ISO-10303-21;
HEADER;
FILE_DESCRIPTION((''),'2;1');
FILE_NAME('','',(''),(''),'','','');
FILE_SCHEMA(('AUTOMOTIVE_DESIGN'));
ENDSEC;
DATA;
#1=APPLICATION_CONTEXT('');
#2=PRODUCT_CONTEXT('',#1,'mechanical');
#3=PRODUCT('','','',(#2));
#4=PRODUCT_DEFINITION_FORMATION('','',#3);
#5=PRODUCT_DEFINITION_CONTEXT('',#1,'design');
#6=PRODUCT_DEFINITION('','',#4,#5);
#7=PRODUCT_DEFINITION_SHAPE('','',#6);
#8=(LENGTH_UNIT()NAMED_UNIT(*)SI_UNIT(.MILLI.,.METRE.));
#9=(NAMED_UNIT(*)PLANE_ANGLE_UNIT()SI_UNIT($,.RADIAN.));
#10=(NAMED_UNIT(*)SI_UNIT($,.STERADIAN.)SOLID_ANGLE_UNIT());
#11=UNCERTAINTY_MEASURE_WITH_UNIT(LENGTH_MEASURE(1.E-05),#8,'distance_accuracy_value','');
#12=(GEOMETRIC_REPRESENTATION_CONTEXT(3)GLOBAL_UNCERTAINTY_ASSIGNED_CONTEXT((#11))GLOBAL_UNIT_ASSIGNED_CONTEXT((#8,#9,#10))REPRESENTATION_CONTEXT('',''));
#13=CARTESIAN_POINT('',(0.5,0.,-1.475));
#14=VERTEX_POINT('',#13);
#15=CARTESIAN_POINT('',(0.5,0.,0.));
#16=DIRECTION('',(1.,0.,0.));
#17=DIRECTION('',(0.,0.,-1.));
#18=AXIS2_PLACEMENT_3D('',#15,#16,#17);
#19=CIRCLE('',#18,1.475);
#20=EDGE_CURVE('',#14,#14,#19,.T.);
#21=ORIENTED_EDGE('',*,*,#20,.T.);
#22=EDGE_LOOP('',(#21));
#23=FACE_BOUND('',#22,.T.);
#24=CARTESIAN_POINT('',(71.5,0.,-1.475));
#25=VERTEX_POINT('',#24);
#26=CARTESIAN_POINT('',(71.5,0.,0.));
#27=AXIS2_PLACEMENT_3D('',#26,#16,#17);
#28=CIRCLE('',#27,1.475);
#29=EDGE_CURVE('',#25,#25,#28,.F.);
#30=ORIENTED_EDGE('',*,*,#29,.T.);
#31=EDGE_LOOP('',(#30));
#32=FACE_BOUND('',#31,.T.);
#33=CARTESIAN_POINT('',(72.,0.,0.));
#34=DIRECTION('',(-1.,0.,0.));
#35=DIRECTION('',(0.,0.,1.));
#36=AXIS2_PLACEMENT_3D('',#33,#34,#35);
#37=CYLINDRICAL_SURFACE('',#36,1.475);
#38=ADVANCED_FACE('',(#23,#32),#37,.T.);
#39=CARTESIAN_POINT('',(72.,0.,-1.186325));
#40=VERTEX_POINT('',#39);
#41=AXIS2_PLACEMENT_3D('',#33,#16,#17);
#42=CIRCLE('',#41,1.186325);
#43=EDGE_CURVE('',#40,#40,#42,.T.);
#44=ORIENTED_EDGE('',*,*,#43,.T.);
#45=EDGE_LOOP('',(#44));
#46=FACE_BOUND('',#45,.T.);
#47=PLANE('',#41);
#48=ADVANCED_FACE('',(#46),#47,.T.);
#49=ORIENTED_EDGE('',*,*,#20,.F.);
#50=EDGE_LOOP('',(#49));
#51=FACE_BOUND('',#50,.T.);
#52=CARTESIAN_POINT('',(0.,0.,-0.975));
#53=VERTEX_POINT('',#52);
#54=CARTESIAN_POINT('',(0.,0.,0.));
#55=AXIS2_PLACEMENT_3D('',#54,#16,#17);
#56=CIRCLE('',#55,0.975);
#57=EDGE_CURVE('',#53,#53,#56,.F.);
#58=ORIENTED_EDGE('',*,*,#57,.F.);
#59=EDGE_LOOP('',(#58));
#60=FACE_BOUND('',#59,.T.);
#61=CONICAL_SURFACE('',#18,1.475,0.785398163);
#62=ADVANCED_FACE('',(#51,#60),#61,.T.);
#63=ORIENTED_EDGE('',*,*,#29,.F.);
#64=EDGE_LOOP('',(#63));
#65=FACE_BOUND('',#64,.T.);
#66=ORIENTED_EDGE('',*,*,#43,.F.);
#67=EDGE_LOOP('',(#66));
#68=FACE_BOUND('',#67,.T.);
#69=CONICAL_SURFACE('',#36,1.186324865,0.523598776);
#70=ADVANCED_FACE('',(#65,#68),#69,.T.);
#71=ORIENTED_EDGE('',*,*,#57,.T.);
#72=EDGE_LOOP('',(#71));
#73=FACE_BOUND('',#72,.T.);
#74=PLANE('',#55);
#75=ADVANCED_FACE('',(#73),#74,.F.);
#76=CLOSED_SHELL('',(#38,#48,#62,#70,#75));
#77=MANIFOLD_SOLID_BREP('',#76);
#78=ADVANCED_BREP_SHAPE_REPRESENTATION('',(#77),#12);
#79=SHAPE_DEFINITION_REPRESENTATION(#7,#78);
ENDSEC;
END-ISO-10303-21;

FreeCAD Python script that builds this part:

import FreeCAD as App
import Part
import Sketcher
from FreeCAD import Vector
Q = App.Units.Quantity


def edges_at(feature, points):
    """Names of the edges that pass closest to the given points."""
    edges = feature.Shape.Edges
    near = lambda p: min(range(len(edges)), key=lambda i: edges[i].distToShape(Part.Vertex(*p))[0])
    return sorted({f"Edge{near(p) + 1}" for p in points})

doc = App.newDocument("Part")
body = doc.addObject("PartDesign::Body", "Body")

# Sketch on YZ plane
sketch1 = body.newObject("Sketcher::SketchObject", "Sketch")
sketch1.AttachmentSupport = (doc.getObject("YZ_Plane"), [""])
sketch1.MapMode = "FlatFace"
sketch1.addGeometry(Part.Circle(Vector(0, 0, 0), Vector(0, 0, 1), 1.5), False)
sketch1.addConstraint(Sketcher.Constraint("Coincident", 0, 3, -1, 1))
sketch1.addConstraint(Sketcher.Constraint("Diameter", 0, Q("2.95 mm")))
pad1 = body.newObject("PartDesign::Pad", "Pad")
pad1.Profile = sketch1
pad1.Length = 72
doc.recompute()

chamfer = body.newObject("PartDesign::Chamfer", "Chamfer")
chamfer.Base = (pad1, edges_at(pad1, [(72, 0, 1.475)]))
chamfer.ChamferType = "Two distances"
chamfer.Size = 0.5
chamfer.Size2 = 0.288675
doc.recompute()

chamfer2 = body.newObject("PartDesign::Chamfer", "Chamfer001")
chamfer2.Base = (chamfer, edges_at(chamfer, [(0, 0, 1.475)]))
chamfer2.Size = 0.5

doc.recompute()
